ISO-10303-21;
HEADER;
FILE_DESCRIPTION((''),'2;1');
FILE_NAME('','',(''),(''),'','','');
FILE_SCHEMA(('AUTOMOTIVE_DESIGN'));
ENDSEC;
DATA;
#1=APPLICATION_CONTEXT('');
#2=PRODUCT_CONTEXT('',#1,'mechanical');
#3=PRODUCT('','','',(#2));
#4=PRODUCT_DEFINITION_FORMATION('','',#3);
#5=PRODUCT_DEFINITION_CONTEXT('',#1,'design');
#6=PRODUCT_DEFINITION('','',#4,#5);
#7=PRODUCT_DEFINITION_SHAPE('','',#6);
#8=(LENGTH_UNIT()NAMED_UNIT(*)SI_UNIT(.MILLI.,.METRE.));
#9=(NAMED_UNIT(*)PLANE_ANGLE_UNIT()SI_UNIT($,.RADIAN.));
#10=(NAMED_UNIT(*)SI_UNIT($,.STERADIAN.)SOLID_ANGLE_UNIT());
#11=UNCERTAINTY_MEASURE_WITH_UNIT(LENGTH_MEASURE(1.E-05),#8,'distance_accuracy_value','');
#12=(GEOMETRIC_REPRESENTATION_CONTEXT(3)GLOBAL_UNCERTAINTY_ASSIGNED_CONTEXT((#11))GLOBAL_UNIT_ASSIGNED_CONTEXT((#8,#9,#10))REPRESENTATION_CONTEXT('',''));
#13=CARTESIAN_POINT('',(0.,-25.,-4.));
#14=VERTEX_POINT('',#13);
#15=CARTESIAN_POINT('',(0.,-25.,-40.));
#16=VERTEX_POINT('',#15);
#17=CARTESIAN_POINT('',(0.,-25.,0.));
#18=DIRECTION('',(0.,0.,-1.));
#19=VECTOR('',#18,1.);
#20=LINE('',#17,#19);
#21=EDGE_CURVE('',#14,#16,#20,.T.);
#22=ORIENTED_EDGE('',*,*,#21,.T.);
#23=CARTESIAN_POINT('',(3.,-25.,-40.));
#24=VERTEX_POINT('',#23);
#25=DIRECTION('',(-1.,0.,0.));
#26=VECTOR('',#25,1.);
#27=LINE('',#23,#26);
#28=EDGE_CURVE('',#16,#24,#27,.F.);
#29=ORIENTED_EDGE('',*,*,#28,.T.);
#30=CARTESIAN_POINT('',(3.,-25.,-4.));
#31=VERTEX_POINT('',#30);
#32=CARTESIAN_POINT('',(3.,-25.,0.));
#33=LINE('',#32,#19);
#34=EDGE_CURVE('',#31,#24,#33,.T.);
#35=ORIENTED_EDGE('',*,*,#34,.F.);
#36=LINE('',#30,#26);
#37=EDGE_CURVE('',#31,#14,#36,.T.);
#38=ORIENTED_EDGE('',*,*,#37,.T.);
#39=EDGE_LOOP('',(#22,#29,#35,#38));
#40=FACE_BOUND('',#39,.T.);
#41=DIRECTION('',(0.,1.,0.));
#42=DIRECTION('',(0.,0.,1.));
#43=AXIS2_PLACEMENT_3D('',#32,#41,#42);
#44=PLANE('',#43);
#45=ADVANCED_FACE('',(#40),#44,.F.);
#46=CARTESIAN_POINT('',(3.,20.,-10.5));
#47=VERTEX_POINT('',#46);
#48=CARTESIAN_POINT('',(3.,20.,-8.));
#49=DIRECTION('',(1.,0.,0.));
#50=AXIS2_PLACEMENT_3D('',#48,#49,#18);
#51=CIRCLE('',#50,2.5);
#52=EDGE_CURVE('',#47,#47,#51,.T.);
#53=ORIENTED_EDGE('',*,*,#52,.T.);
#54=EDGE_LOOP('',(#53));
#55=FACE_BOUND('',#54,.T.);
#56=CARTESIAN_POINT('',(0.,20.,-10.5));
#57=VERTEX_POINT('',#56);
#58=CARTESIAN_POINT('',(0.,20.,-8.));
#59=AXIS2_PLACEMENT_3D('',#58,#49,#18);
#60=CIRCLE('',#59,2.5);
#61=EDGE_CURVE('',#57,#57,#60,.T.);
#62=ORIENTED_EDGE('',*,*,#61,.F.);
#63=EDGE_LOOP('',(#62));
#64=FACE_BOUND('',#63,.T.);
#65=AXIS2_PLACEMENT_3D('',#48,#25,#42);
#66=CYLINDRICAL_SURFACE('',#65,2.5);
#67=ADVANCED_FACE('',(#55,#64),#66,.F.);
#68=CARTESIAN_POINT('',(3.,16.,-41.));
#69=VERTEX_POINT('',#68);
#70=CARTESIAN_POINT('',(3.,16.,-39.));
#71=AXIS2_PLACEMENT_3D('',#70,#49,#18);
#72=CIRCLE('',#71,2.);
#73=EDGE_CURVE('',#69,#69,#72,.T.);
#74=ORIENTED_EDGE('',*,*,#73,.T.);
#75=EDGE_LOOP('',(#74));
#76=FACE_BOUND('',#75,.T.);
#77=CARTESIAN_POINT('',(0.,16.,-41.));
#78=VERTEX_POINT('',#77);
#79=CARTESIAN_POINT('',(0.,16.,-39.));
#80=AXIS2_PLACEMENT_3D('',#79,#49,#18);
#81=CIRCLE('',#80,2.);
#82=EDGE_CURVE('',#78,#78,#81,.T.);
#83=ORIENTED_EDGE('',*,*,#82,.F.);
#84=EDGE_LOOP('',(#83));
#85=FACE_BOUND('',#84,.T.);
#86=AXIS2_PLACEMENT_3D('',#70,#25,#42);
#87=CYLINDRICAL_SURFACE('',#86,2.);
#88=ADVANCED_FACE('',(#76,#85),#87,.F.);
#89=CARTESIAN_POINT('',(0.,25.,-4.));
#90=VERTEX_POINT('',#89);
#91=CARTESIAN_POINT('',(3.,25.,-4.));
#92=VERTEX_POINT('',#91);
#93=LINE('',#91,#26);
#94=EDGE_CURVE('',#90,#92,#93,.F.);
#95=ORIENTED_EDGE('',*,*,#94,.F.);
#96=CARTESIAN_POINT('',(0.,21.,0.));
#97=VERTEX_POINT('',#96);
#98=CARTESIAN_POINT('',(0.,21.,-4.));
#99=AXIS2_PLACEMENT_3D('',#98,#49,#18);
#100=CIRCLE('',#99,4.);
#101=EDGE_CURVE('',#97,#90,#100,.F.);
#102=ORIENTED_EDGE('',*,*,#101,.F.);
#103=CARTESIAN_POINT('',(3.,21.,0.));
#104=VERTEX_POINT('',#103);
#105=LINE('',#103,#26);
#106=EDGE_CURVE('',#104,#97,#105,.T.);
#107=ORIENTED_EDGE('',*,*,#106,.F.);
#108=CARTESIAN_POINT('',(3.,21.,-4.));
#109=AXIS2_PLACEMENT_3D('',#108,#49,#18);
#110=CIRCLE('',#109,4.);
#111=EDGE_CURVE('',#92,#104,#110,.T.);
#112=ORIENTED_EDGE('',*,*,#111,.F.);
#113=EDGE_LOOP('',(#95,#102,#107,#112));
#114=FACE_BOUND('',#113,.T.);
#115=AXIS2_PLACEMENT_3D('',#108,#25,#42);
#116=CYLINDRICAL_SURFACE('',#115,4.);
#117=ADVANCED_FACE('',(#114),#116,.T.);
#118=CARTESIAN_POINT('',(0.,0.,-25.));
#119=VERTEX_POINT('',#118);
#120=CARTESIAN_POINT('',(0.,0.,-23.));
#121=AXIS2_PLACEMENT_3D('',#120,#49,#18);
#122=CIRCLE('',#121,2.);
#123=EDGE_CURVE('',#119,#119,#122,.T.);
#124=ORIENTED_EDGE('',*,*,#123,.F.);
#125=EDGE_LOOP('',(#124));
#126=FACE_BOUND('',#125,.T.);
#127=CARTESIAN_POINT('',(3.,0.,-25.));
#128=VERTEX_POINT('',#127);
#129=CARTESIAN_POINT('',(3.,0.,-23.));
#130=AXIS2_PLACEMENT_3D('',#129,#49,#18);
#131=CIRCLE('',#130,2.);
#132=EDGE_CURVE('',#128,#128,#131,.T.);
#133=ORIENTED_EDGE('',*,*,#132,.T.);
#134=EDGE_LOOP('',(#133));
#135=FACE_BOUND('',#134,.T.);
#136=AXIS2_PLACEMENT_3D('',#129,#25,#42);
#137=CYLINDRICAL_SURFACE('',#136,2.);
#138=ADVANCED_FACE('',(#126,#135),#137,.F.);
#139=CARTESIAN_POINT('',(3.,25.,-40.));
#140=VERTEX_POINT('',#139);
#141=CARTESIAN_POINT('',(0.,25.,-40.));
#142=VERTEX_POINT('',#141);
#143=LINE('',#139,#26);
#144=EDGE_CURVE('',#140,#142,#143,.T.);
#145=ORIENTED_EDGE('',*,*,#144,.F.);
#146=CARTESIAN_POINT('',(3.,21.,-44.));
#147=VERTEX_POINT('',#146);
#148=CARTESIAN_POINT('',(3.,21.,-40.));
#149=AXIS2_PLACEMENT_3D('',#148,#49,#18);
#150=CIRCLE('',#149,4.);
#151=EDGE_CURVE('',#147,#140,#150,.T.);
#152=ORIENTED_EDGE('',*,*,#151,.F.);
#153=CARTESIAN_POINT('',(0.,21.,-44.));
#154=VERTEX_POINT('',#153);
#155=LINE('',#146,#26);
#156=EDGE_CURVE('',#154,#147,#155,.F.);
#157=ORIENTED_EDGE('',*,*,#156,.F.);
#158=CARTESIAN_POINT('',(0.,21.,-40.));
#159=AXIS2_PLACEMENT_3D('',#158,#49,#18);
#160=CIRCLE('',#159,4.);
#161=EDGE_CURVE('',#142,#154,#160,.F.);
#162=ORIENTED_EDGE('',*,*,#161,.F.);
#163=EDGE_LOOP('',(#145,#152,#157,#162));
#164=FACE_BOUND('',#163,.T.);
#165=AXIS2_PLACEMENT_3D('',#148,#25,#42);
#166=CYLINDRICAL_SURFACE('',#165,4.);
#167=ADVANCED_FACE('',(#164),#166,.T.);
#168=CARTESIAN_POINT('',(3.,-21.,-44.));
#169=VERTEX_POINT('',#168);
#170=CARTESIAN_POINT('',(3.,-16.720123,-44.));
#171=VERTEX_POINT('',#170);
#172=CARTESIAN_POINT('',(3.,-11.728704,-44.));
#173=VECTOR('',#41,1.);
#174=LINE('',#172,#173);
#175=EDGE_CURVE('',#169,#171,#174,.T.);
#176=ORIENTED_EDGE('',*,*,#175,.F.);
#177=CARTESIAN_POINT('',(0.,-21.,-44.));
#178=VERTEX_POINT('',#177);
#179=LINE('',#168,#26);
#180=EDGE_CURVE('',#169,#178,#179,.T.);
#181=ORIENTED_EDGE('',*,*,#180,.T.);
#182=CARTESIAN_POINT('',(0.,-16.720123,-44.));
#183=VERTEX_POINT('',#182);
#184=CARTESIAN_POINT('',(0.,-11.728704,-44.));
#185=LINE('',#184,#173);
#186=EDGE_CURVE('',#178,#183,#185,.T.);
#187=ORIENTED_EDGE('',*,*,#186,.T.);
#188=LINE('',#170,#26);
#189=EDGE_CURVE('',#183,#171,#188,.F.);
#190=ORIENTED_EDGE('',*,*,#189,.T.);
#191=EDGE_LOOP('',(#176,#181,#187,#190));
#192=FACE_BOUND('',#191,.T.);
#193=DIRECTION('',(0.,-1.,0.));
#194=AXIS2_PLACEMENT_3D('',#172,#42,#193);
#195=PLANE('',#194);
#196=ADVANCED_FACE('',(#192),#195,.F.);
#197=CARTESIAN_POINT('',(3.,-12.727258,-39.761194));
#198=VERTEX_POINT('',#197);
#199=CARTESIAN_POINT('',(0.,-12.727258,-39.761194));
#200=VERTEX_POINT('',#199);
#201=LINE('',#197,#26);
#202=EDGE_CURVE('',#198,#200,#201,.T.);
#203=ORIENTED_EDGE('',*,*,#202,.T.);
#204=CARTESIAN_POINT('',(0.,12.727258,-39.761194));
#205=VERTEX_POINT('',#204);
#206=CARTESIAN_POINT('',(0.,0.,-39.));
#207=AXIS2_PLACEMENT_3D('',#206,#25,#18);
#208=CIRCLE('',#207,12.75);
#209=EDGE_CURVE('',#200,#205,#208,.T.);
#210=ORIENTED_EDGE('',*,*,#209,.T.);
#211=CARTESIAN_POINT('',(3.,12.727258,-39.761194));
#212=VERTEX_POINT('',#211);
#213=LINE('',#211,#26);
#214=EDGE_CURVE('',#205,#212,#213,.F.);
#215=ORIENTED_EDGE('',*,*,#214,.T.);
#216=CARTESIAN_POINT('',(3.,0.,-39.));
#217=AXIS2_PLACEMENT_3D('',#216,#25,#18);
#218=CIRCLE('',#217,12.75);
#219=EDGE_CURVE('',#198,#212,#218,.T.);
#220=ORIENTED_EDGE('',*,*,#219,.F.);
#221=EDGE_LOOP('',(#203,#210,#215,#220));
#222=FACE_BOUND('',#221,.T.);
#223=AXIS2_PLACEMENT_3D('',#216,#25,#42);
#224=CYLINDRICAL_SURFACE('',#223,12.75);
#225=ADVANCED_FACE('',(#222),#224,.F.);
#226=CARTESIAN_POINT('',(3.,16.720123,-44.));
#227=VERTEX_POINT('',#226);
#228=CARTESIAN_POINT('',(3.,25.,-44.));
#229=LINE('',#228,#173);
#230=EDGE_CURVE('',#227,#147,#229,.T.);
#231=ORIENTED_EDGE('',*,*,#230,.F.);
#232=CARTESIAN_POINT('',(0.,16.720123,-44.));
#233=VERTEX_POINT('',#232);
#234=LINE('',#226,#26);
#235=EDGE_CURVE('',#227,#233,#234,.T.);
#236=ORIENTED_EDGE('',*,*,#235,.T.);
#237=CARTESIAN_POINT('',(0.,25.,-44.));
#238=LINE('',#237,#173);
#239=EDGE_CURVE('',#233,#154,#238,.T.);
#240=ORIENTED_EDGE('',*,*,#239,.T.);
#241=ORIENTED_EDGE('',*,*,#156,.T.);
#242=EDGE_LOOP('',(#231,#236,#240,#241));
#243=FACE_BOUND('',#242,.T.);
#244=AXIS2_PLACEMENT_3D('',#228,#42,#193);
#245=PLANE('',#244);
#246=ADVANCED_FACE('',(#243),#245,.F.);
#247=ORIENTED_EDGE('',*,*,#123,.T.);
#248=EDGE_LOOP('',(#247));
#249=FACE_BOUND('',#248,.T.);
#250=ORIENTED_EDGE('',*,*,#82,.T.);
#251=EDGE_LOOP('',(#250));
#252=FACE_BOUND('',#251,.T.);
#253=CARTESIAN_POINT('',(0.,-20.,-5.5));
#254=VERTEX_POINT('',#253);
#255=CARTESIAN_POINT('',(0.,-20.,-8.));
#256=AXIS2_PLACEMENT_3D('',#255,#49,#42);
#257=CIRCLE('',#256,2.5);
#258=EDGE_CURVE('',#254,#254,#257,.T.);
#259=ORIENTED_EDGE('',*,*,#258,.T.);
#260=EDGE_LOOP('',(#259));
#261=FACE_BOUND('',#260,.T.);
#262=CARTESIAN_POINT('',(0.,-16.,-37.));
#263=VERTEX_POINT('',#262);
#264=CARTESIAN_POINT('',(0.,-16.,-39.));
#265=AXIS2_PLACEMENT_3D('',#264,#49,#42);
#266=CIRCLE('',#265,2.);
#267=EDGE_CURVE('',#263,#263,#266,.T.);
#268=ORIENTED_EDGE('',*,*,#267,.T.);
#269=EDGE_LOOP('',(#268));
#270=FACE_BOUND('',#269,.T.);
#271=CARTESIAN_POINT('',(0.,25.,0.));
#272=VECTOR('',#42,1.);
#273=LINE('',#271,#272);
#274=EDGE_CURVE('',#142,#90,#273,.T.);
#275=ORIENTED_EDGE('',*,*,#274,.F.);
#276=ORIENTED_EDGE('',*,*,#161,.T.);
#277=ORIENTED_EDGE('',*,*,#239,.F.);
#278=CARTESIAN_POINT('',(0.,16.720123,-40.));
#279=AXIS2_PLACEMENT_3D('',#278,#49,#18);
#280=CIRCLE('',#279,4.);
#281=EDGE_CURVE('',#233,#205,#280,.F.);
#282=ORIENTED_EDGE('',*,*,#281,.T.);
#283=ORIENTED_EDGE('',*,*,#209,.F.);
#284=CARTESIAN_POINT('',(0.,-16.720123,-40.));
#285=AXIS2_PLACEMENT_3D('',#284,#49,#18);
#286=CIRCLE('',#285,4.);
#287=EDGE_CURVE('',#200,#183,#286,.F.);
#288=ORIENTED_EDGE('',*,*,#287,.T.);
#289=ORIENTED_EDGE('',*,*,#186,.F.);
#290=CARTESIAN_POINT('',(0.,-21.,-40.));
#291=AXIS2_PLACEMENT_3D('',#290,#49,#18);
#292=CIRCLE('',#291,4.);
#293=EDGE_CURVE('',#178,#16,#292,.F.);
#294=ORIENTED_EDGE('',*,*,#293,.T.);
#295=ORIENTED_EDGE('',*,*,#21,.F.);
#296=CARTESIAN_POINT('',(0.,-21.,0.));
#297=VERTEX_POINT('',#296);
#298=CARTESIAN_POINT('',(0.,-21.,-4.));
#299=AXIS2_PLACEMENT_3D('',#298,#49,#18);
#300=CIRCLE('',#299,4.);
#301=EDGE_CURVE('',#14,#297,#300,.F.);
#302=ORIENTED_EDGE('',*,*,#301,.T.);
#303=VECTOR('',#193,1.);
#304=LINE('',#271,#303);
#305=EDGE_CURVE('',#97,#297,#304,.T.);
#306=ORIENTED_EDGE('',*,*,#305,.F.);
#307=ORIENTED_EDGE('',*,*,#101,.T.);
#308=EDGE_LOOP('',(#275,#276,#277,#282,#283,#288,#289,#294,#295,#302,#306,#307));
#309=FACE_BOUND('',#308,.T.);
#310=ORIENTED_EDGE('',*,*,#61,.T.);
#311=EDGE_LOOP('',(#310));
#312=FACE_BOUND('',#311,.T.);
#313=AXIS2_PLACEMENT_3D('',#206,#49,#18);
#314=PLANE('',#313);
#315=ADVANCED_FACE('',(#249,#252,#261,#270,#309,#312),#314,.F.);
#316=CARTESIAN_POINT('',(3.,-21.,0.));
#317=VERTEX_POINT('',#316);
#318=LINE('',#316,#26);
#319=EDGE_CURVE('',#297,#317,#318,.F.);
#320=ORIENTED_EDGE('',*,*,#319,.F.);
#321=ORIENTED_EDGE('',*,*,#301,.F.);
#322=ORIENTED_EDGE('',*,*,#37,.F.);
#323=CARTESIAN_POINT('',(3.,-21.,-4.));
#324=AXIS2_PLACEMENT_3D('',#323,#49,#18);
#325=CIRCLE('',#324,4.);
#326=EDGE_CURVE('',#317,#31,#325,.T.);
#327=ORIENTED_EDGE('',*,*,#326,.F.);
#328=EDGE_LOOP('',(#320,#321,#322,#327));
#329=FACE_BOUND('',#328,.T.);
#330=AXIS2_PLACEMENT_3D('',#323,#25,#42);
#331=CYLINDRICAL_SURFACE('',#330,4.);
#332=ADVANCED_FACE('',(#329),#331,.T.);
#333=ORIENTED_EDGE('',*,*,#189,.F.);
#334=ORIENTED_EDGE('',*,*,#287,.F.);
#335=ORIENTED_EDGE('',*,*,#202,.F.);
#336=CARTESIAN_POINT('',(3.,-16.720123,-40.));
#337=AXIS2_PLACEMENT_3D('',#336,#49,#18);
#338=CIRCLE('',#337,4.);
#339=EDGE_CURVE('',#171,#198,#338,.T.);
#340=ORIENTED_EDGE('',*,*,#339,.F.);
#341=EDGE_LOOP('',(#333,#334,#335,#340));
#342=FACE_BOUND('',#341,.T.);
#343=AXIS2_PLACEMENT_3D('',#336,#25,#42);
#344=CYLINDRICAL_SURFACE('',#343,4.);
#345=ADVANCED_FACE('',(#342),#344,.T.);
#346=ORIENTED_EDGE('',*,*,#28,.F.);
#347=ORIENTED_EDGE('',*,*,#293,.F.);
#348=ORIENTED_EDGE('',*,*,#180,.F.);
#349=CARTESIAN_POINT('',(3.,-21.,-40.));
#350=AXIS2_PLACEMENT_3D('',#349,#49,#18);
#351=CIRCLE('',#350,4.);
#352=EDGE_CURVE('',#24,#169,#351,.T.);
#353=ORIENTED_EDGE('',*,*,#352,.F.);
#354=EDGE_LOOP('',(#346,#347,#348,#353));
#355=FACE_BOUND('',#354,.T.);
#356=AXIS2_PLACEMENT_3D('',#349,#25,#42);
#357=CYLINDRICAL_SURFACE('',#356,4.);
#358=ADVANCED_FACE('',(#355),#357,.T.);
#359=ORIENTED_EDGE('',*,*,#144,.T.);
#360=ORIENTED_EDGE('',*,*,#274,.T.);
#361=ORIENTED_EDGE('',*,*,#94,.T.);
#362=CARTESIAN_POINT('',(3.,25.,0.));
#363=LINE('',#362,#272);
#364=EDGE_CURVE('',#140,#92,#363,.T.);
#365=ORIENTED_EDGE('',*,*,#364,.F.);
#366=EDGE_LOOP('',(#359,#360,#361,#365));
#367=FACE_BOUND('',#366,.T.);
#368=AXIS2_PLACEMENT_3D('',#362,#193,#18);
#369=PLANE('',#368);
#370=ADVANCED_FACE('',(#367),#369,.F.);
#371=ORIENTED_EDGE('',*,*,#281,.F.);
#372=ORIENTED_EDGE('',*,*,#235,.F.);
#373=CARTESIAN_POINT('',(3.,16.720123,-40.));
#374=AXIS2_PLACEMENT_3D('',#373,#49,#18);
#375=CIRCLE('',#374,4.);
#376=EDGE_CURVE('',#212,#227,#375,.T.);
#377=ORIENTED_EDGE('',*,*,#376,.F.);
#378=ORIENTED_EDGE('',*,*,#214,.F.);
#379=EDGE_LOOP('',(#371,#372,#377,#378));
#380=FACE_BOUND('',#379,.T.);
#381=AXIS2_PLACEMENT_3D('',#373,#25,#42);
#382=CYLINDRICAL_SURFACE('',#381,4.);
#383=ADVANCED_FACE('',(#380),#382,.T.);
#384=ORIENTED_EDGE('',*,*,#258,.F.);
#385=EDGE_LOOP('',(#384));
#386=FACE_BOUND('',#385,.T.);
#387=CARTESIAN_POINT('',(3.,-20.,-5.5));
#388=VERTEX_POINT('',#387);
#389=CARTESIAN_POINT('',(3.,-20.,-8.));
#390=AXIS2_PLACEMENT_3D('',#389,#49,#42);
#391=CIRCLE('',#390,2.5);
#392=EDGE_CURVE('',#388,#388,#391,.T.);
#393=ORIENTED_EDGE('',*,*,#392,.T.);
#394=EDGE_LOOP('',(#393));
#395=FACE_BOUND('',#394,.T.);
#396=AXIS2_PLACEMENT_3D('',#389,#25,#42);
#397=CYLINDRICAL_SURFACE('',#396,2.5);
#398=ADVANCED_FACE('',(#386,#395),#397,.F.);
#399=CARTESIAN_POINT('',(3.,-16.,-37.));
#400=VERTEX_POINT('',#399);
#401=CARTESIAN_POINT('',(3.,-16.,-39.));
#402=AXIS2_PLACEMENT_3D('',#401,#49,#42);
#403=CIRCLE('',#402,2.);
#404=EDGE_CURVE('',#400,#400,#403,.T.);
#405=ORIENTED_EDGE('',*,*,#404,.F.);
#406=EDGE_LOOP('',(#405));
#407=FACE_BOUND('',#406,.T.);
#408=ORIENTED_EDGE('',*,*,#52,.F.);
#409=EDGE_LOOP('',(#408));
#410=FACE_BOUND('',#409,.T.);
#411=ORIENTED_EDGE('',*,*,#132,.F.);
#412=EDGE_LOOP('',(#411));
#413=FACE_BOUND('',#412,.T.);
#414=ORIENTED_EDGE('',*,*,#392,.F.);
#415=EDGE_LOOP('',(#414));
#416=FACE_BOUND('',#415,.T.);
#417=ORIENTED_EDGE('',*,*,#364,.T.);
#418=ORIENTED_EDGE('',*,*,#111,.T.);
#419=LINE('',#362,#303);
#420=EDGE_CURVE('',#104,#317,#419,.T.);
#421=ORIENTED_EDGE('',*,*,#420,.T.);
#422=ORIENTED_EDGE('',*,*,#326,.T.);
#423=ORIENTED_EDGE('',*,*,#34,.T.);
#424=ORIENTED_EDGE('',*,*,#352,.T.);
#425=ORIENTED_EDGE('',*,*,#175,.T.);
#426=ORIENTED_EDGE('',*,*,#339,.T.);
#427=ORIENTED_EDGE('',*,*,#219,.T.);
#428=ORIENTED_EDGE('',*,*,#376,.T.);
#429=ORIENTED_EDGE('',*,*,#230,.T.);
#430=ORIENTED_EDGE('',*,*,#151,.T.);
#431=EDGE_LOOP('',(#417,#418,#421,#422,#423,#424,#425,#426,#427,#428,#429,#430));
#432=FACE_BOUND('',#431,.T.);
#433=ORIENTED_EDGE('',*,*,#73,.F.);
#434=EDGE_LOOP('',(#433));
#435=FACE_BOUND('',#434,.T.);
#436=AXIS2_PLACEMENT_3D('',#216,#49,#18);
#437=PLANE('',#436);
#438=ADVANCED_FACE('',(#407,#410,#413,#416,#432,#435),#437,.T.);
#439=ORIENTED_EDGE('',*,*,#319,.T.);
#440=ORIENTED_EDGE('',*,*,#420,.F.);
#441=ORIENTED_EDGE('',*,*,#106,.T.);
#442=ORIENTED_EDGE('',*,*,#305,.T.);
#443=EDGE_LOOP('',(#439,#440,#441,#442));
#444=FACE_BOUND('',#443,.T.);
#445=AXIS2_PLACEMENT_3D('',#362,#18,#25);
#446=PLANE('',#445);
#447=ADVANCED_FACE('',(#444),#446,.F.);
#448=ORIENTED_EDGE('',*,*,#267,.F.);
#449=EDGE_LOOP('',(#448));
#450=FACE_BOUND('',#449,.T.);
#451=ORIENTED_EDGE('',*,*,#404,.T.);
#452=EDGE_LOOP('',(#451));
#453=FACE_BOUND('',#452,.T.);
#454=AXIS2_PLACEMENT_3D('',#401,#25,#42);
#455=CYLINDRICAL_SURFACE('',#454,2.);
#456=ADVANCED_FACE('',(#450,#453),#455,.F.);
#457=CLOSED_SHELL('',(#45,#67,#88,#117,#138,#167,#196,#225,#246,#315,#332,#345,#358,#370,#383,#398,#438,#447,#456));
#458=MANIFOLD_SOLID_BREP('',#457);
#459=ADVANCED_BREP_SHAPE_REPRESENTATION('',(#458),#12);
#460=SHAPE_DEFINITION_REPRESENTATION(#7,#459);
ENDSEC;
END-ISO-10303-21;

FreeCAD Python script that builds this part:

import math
import FreeCAD as App
import Part
import Sketcher

V = App.Vector


def edges_at(feature, points):
    """Names of the edges that pass closest to the given points."""
    edges = feature.Shape.Edges
    near = lambda p: min(range(len(edges)), key=lambda i: edges[i].distToShape(Part.Vertex(*p))[0])
    return sorted({f"Edge{near(p) + 1}" for p in points})

doc = App.newDocument("Part")
body = doc.addObject("PartDesign::Body", "Body")

sketch1 = body.newObject("Sketcher::SketchObject", "Sketch")
sketch1.AttachmentSupport = (doc.getObject("YZ_Plane"), [""])
sketch1.MapMode = "FlatFace"
sketch1.addGeometry([
    Part.LineSegment(V(25, -44, 0), V(25, 0, 0)),
    Part.LineSegment(V(25, 0, 0), V(-25, 0, 0)),
    Part.LineSegment(V(-25, 0, 0), V(-25, -44, 0)),
    Part.LineSegment(V(-25, -44, 0), V(-11.7, -44, 0)),
    Part.ArcOfCircle(Part.Circle(V(0, -39, 0), V(0, 0, 1), 12.8), math.radians(-23), math.radians(203)),
    Part.LineSegment(V(11.7, -44, 0), V(25, -44, 0)),
    Part.Circle(V(-16, -39, 0), V(0, 0, 1), 2),
    Part.Circle(V(-20, -8, 0), V(0, 0, 1), 2.5),
    Part.Circle(V(16, -39, 0), V(0, 0, 1), 2),
    Part.Circle(V(0, -23, 0), V(0, 0, 1), 2),
    Part.Circle(V(20, -8, 0), V(0, 0, 1), 2.5),
], False)
sketch1.addConstraint([
    Sketcher.Constraint("Coincident", 0, 2, 1, 1),
    Sketcher.Constraint("Coincident", 1, 2, 2, 1),
    Sketcher.Constraint("Coincident", 2, 2, 3, 1),
    Sketcher.Constraint("Coincident", 3, 2, 4, 2),
    Sketcher.Constraint("Coincident", 4, 1, 5, 1),
    Sketcher.Constraint("Coincident", 5, 2, 0, 1),
    Sketcher.Constraint("Vertical", 0),
    Sketcher.Constraint("Horizontal", 1),
    Sketcher.Constraint("Vertical", 2),
    Sketcher.Constraint("Horizontal", 3),
    Sketcher.Constraint("Horizontal", 5),
    Sketcher.Constraint("Equal", 6, 8),
    Sketcher.Constraint("Equal", 8, 9),
    Sketcher.Constraint("Equal", 7, 10),
    Sketcher.Constraint("Symmetric", 0, 2, 1, 2, -1, 1),
    Sketcher.Constraint("Symmetric", 6, 3, 8, 3, -2),
    Sketcher.Constraint("Symmetric", 7, 3, 10, 3, -2),
    Sketcher.Constraint("Symmetric", 3, 2, 4, 1, -2),
    Sketcher.Constraint("PointOnObject", 9, 3, -2),
    Sketcher.Constraint("Horizontal", 4, 3, 6, 3),
    Sketcher.Constraint("Diameter", 6, 4.0),
    Sketcher.Constraint("Diameter", 7, 5.0),
    Sketcher.Constraint("DistanceX", 1, 2, 1, 1, 50.0),
    Sketcher.Constraint("DistanceY", 0, 1, 0, 2, 44.0),
    Sketcher.Constraint("Radius", 4, 12.75),
    Sketcher.Constraint("DistanceY", 4, 3, -1, 1, 39.0),
    Sketcher.Constraint("DistanceX", 6, 3, -1, 1, 16.0),
    Sketcher.Constraint("DistanceX", 7, 3, -1, 1, 20.0),
    Sketcher.Constraint("DistanceY", 7, 3, -1, 1, 8.0),
    Sketcher.Constraint("DistanceY", 9, 3, -1, 1, 23.0),
])
pad1 = body.newObject("PartDesign::Pad", "Pad")
pad1.Profile = sketch1
pad1.Length = 3
doc.recompute()

fillet = body.newObject("PartDesign::Fillet", "Fillet")
fillet.Base = (pad1, edges_at(pad1, [
    (1.5, 25, 0),
    (1.5, 25, -44),
    (1.5, 11.729, -44),
    (1.5, -11.729, -44),
    (1.5, -25, -44),
    (1.5, -25, 0),
]))
fillet.Radius = 4

doc.recompute()
